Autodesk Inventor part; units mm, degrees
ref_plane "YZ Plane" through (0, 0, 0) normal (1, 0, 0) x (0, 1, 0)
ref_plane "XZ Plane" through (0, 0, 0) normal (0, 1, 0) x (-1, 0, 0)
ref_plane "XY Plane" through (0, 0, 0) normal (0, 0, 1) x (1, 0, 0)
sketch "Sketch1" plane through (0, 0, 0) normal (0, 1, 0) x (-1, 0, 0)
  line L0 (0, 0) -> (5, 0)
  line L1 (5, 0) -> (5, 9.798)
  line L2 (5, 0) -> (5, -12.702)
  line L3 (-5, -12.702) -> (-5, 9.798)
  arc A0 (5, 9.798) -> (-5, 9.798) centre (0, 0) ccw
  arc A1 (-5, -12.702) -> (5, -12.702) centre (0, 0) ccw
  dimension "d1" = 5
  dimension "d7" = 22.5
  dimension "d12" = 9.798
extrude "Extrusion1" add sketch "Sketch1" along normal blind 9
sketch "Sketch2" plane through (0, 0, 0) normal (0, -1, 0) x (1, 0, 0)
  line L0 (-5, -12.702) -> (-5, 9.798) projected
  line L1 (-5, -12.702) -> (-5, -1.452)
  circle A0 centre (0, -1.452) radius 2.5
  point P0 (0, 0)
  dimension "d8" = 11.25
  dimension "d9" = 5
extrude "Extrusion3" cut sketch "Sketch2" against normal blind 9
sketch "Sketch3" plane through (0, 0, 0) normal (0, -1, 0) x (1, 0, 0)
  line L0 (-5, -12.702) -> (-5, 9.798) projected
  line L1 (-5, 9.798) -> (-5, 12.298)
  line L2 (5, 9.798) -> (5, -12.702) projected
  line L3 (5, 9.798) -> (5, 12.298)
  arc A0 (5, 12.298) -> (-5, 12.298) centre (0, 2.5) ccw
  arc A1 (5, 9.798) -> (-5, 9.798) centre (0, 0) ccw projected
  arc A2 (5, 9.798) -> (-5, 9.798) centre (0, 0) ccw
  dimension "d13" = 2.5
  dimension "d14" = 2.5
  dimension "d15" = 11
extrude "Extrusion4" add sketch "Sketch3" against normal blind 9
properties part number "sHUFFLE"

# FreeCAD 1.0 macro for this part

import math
import FreeCAD as App
import Part
import Sketcher

V = App.Vector
Q = App.Units.Quantity

doc = App.newDocument("Part")
params = doc.addObject("Spreadsheet::Sheet", "Params")
for row, (alias, value) in enumerate([
    ("sketch1_height", "22.5 mm"),
    ("sketch1_radius", "11 mm"),
    ("pad1_length", "9 mm"),
    ("sketch2_diameter", "5 mm"),
    ("pocket1_length", "9 mm"),
    ("sketch3_radius", "11 mm"),
    ("sketch3_height", "2.5 mm"),
    ("pad2_length", "9 mm"),
], start=1):
    params.set(f"A{row}", alias)
    params.set(f"B{row}", "=" + value)
    params.setAlias(f"B{row}", alias)

body = doc.addObject("PartDesign::Body", "Body")

# Sketch on XZ plane
sketch1 = doc.addObject("Sketcher::SketchObject", "Sketch")
body.addObject(sketch1)
sketch1.AttachmentSupport = (doc.XZ_Plane, [""])
sketch1.MapMode = "FlatFace"
sketch1.addGeometry(Part.LineSegment(V(-5, -13, 0), V(-5, 10, 0)), False)
sketch1.addGeometry(Part.ArcOfCircle(Part.Circle(V(0, 0, 0), V(0, 0, 1), 11), math.radians(63), math.radians(117)), False)
sketch1.addGeometry(Part.LineSegment(V(5, 10, 0), V(5, -13, 0)), False)
sketch1.addGeometry(Part.ArcOfCircle(Part.Circle(V(0, 0, 0), V(0, 0, 1), 14), math.radians(-111), math.radians(-69)), False)
sketch1.addConstraint(Sketcher.Constraint("Coincident", 0, 2, 1, 2))
sketch1.addConstraint(Sketcher.Constraint("Coincident", 1, 1, 2, 1))
sketch1.addConstraint(Sketcher.Constraint("Coincident", 2, 2, 3, 2))
sketch1.addConstraint(Sketcher.Constraint("Coincident", 3, 1, 0, 1))
sketch1.addConstraint(Sketcher.Constraint("Vertical", 0))
sketch1.addConstraint(Sketcher.Constraint("Vertical", 2))
sketch1.addConstraint(Sketcher.Constraint("Coincident", 1, 3, -1, 1))
sketch1.addConstraint(Sketcher.Constraint("Coincident", 3, 3, -1, 1))
sketch1.addConstraint(Sketcher.Constraint("Horizontal", 0, 2, 1, 1))
sketch1.addConstraint(Sketcher.Constraint("DistanceY", 0, 1, 0, 2, Q("22.5 mm")))
sketch1.addConstraint(Sketcher.Constraint("DistanceX", 0, 2, -1, 1, Q("5 mm")))
sketch1.addConstraint(Sketcher.Constraint("Radius", 1, Q("11 mm")))
sketch1.setExpression("Constraints[9]", "Params.sketch1_height")
sketch1.setExpression("Constraints[11]", "Params.sketch1_radius")
pad1 = doc.addObject("PartDesign::Pad", "Pad")
body.addObject(pad1)
pad1.Profile = sketch1
pad1.setExpression("Length", "Params.pad1_length")
pad1.Reversed = True

# Sketch on XZ plane
sketch2 = doc.addObject("Sketcher::SketchObject", "Sketch001")
body.addObject(sketch2)
sketch2.AttachmentSupport = (doc.XZ_Plane, [""])
sketch2.MapMode = "FlatFace"
sketch2.addGeometry(Part.Circle(V(0, -1.5, 0), V(0, 0, 1), 2.5), False)
sketch2.addConstraint(Sketcher.Constraint("PointOnObject", 0, 3, -2))
sketch2.addConstraint(Sketcher.Constraint("Diameter", 0, Q("5 mm")))
sketch2.addConstraint(Sketcher.Constraint("DistanceY", 0, 3, -1, 1, Q("1.452 mm")))
sketch2.setExpression("Constraints[1]", "Params.sketch2_diameter")
pocket1 = doc.addObject("PartDesign::Pocket", "Pocket")
body.addObject(pocket1)
pocket1.Profile = sketch2
pocket1.setExpression("Length", "Params.pocket1_length")

# Sketch on XZ plane
sketch3 = doc.addObject("Sketcher::SketchObject", "Sketch002")
body.addObject(sketch3)
sketch3.AttachmentSupport = (doc.XZ_Plane, [""])
sketch3.MapMode = "FlatFace"
sketch3.addGeometry(Part.LineSegment(V(-5, 12.3, 0), V(-5, 9.8, 0)), False)
sketch3.addGeometry(Part.ArcOfCircle(Part.Circle(V(0, 0, 0), V(0, 0, 1), 11), math.radians(63), math.radians(117)), False)
sketch3.addGeometry(Part.LineSegment(V(5, 9.8, 0), V(5, 12.3, 0)), False)
sketch3.addGeometry(Part.ArcOfCircle(Part.Circle(V(0, 2.5, 0), V(0, 0, 1), 11), math.radians(63), math.radians(117)), False)
sketch3.addConstraint(Sketcher.Constraint("Coincident", 0, 2, 1, 2))
sketch3.addConstraint(Sketcher.Constraint("Coincident", 1, 1, 2, 1))
sketch3.addConstraint(Sketcher.Constraint("Coincident", 2, 2, 3, 1))
sketch3.addConstraint(Sketcher.Constraint("Coincident", 3, 2, 0, 1))
sketch3.addConstraint(Sketcher.Constraint("Vertical", 0))
sketch3.addConstraint(Sketcher.Constraint("Vertical", 2))
sketch3.addConstraint(Sketcher.Constraint("Coincident", 1, 3, -1, 1))
sketch3.addConstraint(Sketcher.Constraint("Equal", 1, 3))
sketch3.addConstraint(Sketcher.Constraint("Symmetric", 2, 2, 3, 2, -2))
sketch3.addConstraint(Sketcher.Constraint("Radius", 1, Q("11 mm")))
sketch3.addConstraint(Sketcher.Constraint("DistanceY", 0, 2, 0, 1, Q("2.5 mm")))
sketch3.addConstraint(Sketcher.Constraint("DistanceX", 0, 2, -1, 1, Q("5 mm")))
sketch3.setExpression("Constraints[9]", "Params.sketch3_radius")
sketch3.setExpression("Constraints[10]", "Params.sketch3_height")
pad2 = doc.addObject("PartDesign::Pad", "Pad001")
body.addObject(pad2)
pad2.Profile = sketch3
pad2.setExpression("Length", "Params.pad2_length")
pad2.Reversed = True

doc.recompute()
